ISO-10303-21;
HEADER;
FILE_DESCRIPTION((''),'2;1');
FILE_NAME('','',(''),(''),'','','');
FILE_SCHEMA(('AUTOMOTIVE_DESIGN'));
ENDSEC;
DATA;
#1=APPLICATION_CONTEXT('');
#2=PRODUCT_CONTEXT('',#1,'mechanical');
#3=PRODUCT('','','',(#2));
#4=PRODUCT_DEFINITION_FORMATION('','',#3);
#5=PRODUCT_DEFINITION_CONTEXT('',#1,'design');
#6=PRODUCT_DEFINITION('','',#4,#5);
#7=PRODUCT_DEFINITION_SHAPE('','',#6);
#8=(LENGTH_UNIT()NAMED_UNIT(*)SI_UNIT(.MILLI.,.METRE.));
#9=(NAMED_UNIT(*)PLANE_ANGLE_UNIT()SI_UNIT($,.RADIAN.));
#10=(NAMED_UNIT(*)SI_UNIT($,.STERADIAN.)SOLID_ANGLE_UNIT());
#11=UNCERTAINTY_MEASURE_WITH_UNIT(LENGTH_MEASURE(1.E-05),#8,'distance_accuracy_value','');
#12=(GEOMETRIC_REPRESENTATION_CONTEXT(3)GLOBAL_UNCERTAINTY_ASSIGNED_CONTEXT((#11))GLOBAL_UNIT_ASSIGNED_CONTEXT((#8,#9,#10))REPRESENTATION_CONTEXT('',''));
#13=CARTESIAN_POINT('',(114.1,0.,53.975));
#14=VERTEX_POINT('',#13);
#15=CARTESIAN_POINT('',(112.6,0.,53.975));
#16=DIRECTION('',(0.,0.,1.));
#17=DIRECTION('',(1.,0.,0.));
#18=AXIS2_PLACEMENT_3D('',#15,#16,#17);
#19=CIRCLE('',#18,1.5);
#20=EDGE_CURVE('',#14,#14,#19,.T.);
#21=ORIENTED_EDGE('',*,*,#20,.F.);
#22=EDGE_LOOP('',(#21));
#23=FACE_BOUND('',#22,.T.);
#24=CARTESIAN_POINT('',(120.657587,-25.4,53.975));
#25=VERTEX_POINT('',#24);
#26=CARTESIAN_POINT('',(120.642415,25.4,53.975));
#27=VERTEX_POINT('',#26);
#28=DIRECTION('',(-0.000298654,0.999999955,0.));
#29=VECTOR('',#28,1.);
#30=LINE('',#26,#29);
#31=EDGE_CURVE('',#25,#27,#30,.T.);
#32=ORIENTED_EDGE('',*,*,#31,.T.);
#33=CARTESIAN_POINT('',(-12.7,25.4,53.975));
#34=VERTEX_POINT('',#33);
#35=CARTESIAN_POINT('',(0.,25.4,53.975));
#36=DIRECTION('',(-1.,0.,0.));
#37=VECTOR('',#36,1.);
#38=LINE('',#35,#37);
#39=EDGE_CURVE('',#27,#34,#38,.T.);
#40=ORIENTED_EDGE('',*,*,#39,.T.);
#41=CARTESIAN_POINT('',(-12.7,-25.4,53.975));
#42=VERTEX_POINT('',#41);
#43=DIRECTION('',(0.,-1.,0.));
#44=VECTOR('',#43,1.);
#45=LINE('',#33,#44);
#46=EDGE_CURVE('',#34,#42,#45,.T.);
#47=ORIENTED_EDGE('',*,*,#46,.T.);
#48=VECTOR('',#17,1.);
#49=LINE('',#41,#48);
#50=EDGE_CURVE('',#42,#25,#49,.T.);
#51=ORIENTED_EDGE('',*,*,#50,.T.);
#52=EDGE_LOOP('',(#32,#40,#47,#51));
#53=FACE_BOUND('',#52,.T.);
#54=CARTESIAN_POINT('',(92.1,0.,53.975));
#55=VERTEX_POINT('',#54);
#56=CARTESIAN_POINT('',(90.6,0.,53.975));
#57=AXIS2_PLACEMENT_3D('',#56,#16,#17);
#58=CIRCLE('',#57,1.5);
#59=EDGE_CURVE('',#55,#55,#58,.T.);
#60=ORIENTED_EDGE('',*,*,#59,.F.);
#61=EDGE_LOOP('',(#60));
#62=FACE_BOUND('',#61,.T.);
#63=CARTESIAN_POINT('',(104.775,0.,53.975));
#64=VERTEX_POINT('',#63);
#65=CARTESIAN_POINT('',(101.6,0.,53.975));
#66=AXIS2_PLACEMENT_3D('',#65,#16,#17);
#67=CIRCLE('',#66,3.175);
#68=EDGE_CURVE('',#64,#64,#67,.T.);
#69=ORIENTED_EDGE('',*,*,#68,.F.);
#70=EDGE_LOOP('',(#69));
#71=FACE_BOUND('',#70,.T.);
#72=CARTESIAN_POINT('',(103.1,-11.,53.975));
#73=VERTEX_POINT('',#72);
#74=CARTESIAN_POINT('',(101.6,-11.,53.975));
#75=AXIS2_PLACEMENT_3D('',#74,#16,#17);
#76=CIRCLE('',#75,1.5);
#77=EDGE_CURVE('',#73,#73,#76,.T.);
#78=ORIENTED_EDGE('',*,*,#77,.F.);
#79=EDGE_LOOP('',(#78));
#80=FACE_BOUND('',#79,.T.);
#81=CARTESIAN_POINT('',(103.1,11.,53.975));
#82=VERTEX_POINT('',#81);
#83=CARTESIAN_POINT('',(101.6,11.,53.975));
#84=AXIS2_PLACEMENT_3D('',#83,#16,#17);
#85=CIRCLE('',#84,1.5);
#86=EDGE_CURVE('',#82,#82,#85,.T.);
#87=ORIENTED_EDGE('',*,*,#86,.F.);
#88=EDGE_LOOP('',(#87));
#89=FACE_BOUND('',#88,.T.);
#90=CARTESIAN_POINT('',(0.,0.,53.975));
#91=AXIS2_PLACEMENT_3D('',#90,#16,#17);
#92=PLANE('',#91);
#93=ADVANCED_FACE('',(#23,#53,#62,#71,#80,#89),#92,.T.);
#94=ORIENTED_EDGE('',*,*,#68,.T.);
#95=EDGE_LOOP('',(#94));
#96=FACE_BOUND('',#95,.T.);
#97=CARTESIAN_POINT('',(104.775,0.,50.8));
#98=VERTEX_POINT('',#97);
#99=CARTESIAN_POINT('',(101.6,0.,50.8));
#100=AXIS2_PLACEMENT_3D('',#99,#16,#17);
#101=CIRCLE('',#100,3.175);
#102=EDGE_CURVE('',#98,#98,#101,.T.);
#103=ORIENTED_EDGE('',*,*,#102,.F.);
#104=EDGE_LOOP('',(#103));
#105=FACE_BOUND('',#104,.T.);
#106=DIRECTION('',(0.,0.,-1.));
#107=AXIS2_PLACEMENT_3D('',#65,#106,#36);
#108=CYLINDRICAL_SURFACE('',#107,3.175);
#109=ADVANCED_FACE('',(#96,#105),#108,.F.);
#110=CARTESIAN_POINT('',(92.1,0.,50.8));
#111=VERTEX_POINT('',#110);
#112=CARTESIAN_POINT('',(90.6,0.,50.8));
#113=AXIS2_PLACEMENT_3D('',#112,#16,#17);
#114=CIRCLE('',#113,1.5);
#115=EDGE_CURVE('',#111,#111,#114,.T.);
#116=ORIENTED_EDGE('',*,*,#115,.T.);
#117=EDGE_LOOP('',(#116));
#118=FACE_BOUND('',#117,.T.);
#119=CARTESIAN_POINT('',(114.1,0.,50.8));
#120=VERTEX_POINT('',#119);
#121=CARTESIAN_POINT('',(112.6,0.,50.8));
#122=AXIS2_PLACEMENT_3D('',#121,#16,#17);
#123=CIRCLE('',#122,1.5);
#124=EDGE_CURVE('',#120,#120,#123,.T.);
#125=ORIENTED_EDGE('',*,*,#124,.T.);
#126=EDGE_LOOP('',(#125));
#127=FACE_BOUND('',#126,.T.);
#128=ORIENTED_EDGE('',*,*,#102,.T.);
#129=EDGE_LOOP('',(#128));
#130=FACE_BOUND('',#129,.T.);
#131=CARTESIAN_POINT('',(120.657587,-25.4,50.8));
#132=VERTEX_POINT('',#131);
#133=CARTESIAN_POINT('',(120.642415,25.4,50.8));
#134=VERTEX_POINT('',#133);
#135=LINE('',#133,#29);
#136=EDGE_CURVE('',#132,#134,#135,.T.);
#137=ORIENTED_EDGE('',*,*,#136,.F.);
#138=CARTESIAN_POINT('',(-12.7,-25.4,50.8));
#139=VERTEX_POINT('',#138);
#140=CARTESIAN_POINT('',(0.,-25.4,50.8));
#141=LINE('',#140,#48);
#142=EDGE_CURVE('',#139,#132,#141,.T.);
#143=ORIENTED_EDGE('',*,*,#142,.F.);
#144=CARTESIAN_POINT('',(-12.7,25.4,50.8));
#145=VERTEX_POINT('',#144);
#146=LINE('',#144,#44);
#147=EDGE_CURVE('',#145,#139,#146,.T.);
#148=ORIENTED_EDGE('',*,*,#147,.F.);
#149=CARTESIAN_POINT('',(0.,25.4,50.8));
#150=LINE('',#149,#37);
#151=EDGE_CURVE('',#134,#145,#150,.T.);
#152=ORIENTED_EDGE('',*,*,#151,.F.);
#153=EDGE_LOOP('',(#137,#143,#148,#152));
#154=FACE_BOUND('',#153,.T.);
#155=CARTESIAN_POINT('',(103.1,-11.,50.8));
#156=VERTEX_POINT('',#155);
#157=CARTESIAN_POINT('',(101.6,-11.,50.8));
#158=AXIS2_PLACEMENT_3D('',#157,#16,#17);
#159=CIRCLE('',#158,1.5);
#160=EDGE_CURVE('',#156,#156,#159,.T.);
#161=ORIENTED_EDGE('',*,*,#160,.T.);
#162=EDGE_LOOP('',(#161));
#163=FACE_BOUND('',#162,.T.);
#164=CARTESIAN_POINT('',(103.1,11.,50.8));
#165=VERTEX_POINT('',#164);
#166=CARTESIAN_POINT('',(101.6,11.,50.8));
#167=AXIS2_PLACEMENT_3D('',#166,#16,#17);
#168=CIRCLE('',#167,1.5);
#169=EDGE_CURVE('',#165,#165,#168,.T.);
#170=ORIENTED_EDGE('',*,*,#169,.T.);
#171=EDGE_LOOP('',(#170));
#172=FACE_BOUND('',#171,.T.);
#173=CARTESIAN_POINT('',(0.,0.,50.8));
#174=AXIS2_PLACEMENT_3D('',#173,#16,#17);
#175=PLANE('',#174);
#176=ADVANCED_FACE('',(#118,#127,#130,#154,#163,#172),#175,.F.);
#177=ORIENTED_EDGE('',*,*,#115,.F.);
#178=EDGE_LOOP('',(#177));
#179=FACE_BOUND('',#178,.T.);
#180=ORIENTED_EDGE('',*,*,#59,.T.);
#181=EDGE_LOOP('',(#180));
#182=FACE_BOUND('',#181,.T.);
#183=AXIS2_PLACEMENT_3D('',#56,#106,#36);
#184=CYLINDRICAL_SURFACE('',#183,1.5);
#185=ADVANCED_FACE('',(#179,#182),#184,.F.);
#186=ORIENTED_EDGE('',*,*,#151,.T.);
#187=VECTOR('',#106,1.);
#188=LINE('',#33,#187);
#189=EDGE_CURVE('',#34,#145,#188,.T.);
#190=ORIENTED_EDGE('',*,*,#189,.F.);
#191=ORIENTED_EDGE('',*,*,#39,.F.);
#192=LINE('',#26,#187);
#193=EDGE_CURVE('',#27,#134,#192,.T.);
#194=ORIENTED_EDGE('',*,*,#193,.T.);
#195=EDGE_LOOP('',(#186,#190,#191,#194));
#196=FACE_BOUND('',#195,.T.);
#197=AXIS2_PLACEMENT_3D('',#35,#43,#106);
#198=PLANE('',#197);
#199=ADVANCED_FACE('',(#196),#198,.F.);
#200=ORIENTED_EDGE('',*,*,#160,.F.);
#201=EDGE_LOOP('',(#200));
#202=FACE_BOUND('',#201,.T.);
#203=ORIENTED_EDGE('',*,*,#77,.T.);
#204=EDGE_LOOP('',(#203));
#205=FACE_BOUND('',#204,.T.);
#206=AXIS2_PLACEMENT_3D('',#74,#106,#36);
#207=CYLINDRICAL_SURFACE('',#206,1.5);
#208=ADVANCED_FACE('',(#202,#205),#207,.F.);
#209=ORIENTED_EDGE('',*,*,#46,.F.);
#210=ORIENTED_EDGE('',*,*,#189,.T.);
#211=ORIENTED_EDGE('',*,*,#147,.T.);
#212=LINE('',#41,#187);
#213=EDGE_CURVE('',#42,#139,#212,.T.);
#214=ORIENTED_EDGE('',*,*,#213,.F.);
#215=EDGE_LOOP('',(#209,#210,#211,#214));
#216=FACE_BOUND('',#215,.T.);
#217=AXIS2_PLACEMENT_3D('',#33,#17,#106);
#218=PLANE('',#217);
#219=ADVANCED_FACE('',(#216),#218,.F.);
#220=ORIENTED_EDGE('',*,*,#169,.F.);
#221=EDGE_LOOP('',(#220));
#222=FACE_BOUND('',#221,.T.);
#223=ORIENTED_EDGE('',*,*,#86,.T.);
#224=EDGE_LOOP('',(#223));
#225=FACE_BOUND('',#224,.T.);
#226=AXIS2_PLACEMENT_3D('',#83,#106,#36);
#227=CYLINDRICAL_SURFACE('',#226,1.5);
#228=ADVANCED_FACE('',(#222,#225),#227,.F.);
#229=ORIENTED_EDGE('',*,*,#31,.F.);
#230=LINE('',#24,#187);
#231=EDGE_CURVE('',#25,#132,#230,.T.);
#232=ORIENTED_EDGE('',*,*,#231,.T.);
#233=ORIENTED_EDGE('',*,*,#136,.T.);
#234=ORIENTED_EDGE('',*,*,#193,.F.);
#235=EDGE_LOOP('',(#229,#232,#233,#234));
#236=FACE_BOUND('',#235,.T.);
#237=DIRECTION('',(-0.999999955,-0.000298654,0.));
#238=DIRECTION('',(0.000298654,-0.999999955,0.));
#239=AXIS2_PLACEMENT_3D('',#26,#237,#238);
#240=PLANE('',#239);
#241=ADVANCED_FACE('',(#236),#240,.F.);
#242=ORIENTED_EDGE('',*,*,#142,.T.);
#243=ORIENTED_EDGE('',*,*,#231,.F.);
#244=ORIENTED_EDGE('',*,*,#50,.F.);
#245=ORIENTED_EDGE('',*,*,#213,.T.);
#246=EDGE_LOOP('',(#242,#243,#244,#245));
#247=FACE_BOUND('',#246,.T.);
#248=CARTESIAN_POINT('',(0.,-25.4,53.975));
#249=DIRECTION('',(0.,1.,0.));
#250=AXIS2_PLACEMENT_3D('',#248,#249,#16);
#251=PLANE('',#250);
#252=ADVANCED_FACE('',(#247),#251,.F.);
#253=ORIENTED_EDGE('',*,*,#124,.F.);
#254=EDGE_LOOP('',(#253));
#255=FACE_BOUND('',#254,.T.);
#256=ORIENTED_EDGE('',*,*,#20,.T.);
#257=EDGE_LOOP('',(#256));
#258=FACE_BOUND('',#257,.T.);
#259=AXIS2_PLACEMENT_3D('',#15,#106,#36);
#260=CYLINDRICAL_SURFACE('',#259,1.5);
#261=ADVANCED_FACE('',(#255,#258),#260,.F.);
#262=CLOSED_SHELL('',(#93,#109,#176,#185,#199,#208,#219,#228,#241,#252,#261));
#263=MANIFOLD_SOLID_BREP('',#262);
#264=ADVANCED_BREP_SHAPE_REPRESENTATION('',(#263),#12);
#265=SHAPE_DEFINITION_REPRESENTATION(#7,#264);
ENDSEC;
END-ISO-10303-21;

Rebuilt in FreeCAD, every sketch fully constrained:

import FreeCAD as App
import Part
import Sketcher
Q = App.Units.Quantity

doc = App.newDocument("Part")
body = doc.addObject("PartDesign::Body", "Body")

sketch1 = doc.addObject("Sketcher::SketchObject", "Sketch")
body.addObject(sketch1)
sketch1.AttachmentSupport = (doc.XY_Plane, [""])
sketch1.MapMode = "FlatFace"
sketch1.AttachmentOffset = App.Placement(App.Vector(0, 0, 2 * 25.4), App.Rotation())
sketch1.addGeometry([
    Part.LineSegment(App.Vector(-12.7, 25.4, 0), App.Vector(-12.7, -25.4, 0)),
    Part.LineSegment(App.Vector(-12.7, -25.4, 0), App.Vector(120.7, -25.4, 0)),
    Part.LineSegment(App.Vector(120.7, -25.4, 0), App.Vector(120.6, 25.4, 0)),
    Part.LineSegment(App.Vector(120.6, 25.4, 0), App.Vector(-12.7, 25.4, 0)),
    Part.Circle(App.Vector(101.6, -11, 0), App.Vector(0, 0, 1), 1.5),
    Part.Circle(App.Vector(90.6, 0, 0), App.Vector(0, 0, 1), 1.5),
    Part.Circle(App.Vector(101.6, 0, 0), App.Vector(0, 0, 1), 3.2),
    Part.Circle(App.Vector(112.6, 0, 0), App.Vector(0, 0, 1), 1.5),
    Part.Circle(App.Vector(101.6, 11, 0), App.Vector(0, 0, 1), 1.5),
], False)
sketch1.addConstraint([
    Sketcher.Constraint("Coincident", 0, 2, 1, 1),
    Sketcher.Constraint("Coincident", 1, 2, 2, 1),
    Sketcher.Constraint("Coincident", 2, 2, 3, 1),
    Sketcher.Constraint("Coincident", 3, 2, 0, 1),
    Sketcher.Constraint("Vertical", 0),
    Sketcher.Constraint("Horizontal", 1),
    Sketcher.Constraint("Horizontal", 3),
    Sketcher.Constraint("Equal", 4, 5),
    Sketcher.Constraint("Equal", 5, 7),
    Sketcher.Constraint("Equal", 7, 8),
    Sketcher.Constraint("Symmetric", 4, 3, 8, 3, -1),
    Sketcher.Constraint("PointOnObject", 5, 3, -1),
    Sketcher.Constraint("PointOnObject", 6, 3, -1),
    Sketcher.Constraint("PointOnObject", 7, 3, -1),
    Sketcher.Constraint("Vertical", 4, 3, 6, 3),
    Sketcher.Constraint("Diameter", 6, Q("0.25 in")),
    Sketcher.Constraint("DistanceY", 0, 2, 0, 1, Q("2 in")),
    Sketcher.Constraint("DistanceX", -1, 1, 4, 3, Q("4 in")),
    Sketcher.Constraint("DistanceY", 0, 2, -1, 1, Q("1 in")),
    Sketcher.Constraint("DistanceX", 0, 2, -1, 1, Q("0.5 in")),
    Sketcher.Constraint("Diameter", 4, 3.0),
    Sketcher.Constraint("DistanceY", 4, 3, -1, 1, 11.0),
    Sketcher.Constraint("DistanceX", -1, 1, 5, 3, 90.6),
    Sketcher.Constraint("DistanceX", -1, 1, 7, 3, 112.6),
    Sketcher.Constraint("DistanceX", 1, 1, 1, 2, 133.357587),
    Sketcher.Constraint("DistanceX", 3, 2, 3, 1, 133.342415),
])
pad1 = doc.addObject("PartDesign::Pad", "Pad")
body.addObject(pad1)
pad1.Profile = sketch1
pad1.Length = Q("0.125 in")

doc.recompute()
